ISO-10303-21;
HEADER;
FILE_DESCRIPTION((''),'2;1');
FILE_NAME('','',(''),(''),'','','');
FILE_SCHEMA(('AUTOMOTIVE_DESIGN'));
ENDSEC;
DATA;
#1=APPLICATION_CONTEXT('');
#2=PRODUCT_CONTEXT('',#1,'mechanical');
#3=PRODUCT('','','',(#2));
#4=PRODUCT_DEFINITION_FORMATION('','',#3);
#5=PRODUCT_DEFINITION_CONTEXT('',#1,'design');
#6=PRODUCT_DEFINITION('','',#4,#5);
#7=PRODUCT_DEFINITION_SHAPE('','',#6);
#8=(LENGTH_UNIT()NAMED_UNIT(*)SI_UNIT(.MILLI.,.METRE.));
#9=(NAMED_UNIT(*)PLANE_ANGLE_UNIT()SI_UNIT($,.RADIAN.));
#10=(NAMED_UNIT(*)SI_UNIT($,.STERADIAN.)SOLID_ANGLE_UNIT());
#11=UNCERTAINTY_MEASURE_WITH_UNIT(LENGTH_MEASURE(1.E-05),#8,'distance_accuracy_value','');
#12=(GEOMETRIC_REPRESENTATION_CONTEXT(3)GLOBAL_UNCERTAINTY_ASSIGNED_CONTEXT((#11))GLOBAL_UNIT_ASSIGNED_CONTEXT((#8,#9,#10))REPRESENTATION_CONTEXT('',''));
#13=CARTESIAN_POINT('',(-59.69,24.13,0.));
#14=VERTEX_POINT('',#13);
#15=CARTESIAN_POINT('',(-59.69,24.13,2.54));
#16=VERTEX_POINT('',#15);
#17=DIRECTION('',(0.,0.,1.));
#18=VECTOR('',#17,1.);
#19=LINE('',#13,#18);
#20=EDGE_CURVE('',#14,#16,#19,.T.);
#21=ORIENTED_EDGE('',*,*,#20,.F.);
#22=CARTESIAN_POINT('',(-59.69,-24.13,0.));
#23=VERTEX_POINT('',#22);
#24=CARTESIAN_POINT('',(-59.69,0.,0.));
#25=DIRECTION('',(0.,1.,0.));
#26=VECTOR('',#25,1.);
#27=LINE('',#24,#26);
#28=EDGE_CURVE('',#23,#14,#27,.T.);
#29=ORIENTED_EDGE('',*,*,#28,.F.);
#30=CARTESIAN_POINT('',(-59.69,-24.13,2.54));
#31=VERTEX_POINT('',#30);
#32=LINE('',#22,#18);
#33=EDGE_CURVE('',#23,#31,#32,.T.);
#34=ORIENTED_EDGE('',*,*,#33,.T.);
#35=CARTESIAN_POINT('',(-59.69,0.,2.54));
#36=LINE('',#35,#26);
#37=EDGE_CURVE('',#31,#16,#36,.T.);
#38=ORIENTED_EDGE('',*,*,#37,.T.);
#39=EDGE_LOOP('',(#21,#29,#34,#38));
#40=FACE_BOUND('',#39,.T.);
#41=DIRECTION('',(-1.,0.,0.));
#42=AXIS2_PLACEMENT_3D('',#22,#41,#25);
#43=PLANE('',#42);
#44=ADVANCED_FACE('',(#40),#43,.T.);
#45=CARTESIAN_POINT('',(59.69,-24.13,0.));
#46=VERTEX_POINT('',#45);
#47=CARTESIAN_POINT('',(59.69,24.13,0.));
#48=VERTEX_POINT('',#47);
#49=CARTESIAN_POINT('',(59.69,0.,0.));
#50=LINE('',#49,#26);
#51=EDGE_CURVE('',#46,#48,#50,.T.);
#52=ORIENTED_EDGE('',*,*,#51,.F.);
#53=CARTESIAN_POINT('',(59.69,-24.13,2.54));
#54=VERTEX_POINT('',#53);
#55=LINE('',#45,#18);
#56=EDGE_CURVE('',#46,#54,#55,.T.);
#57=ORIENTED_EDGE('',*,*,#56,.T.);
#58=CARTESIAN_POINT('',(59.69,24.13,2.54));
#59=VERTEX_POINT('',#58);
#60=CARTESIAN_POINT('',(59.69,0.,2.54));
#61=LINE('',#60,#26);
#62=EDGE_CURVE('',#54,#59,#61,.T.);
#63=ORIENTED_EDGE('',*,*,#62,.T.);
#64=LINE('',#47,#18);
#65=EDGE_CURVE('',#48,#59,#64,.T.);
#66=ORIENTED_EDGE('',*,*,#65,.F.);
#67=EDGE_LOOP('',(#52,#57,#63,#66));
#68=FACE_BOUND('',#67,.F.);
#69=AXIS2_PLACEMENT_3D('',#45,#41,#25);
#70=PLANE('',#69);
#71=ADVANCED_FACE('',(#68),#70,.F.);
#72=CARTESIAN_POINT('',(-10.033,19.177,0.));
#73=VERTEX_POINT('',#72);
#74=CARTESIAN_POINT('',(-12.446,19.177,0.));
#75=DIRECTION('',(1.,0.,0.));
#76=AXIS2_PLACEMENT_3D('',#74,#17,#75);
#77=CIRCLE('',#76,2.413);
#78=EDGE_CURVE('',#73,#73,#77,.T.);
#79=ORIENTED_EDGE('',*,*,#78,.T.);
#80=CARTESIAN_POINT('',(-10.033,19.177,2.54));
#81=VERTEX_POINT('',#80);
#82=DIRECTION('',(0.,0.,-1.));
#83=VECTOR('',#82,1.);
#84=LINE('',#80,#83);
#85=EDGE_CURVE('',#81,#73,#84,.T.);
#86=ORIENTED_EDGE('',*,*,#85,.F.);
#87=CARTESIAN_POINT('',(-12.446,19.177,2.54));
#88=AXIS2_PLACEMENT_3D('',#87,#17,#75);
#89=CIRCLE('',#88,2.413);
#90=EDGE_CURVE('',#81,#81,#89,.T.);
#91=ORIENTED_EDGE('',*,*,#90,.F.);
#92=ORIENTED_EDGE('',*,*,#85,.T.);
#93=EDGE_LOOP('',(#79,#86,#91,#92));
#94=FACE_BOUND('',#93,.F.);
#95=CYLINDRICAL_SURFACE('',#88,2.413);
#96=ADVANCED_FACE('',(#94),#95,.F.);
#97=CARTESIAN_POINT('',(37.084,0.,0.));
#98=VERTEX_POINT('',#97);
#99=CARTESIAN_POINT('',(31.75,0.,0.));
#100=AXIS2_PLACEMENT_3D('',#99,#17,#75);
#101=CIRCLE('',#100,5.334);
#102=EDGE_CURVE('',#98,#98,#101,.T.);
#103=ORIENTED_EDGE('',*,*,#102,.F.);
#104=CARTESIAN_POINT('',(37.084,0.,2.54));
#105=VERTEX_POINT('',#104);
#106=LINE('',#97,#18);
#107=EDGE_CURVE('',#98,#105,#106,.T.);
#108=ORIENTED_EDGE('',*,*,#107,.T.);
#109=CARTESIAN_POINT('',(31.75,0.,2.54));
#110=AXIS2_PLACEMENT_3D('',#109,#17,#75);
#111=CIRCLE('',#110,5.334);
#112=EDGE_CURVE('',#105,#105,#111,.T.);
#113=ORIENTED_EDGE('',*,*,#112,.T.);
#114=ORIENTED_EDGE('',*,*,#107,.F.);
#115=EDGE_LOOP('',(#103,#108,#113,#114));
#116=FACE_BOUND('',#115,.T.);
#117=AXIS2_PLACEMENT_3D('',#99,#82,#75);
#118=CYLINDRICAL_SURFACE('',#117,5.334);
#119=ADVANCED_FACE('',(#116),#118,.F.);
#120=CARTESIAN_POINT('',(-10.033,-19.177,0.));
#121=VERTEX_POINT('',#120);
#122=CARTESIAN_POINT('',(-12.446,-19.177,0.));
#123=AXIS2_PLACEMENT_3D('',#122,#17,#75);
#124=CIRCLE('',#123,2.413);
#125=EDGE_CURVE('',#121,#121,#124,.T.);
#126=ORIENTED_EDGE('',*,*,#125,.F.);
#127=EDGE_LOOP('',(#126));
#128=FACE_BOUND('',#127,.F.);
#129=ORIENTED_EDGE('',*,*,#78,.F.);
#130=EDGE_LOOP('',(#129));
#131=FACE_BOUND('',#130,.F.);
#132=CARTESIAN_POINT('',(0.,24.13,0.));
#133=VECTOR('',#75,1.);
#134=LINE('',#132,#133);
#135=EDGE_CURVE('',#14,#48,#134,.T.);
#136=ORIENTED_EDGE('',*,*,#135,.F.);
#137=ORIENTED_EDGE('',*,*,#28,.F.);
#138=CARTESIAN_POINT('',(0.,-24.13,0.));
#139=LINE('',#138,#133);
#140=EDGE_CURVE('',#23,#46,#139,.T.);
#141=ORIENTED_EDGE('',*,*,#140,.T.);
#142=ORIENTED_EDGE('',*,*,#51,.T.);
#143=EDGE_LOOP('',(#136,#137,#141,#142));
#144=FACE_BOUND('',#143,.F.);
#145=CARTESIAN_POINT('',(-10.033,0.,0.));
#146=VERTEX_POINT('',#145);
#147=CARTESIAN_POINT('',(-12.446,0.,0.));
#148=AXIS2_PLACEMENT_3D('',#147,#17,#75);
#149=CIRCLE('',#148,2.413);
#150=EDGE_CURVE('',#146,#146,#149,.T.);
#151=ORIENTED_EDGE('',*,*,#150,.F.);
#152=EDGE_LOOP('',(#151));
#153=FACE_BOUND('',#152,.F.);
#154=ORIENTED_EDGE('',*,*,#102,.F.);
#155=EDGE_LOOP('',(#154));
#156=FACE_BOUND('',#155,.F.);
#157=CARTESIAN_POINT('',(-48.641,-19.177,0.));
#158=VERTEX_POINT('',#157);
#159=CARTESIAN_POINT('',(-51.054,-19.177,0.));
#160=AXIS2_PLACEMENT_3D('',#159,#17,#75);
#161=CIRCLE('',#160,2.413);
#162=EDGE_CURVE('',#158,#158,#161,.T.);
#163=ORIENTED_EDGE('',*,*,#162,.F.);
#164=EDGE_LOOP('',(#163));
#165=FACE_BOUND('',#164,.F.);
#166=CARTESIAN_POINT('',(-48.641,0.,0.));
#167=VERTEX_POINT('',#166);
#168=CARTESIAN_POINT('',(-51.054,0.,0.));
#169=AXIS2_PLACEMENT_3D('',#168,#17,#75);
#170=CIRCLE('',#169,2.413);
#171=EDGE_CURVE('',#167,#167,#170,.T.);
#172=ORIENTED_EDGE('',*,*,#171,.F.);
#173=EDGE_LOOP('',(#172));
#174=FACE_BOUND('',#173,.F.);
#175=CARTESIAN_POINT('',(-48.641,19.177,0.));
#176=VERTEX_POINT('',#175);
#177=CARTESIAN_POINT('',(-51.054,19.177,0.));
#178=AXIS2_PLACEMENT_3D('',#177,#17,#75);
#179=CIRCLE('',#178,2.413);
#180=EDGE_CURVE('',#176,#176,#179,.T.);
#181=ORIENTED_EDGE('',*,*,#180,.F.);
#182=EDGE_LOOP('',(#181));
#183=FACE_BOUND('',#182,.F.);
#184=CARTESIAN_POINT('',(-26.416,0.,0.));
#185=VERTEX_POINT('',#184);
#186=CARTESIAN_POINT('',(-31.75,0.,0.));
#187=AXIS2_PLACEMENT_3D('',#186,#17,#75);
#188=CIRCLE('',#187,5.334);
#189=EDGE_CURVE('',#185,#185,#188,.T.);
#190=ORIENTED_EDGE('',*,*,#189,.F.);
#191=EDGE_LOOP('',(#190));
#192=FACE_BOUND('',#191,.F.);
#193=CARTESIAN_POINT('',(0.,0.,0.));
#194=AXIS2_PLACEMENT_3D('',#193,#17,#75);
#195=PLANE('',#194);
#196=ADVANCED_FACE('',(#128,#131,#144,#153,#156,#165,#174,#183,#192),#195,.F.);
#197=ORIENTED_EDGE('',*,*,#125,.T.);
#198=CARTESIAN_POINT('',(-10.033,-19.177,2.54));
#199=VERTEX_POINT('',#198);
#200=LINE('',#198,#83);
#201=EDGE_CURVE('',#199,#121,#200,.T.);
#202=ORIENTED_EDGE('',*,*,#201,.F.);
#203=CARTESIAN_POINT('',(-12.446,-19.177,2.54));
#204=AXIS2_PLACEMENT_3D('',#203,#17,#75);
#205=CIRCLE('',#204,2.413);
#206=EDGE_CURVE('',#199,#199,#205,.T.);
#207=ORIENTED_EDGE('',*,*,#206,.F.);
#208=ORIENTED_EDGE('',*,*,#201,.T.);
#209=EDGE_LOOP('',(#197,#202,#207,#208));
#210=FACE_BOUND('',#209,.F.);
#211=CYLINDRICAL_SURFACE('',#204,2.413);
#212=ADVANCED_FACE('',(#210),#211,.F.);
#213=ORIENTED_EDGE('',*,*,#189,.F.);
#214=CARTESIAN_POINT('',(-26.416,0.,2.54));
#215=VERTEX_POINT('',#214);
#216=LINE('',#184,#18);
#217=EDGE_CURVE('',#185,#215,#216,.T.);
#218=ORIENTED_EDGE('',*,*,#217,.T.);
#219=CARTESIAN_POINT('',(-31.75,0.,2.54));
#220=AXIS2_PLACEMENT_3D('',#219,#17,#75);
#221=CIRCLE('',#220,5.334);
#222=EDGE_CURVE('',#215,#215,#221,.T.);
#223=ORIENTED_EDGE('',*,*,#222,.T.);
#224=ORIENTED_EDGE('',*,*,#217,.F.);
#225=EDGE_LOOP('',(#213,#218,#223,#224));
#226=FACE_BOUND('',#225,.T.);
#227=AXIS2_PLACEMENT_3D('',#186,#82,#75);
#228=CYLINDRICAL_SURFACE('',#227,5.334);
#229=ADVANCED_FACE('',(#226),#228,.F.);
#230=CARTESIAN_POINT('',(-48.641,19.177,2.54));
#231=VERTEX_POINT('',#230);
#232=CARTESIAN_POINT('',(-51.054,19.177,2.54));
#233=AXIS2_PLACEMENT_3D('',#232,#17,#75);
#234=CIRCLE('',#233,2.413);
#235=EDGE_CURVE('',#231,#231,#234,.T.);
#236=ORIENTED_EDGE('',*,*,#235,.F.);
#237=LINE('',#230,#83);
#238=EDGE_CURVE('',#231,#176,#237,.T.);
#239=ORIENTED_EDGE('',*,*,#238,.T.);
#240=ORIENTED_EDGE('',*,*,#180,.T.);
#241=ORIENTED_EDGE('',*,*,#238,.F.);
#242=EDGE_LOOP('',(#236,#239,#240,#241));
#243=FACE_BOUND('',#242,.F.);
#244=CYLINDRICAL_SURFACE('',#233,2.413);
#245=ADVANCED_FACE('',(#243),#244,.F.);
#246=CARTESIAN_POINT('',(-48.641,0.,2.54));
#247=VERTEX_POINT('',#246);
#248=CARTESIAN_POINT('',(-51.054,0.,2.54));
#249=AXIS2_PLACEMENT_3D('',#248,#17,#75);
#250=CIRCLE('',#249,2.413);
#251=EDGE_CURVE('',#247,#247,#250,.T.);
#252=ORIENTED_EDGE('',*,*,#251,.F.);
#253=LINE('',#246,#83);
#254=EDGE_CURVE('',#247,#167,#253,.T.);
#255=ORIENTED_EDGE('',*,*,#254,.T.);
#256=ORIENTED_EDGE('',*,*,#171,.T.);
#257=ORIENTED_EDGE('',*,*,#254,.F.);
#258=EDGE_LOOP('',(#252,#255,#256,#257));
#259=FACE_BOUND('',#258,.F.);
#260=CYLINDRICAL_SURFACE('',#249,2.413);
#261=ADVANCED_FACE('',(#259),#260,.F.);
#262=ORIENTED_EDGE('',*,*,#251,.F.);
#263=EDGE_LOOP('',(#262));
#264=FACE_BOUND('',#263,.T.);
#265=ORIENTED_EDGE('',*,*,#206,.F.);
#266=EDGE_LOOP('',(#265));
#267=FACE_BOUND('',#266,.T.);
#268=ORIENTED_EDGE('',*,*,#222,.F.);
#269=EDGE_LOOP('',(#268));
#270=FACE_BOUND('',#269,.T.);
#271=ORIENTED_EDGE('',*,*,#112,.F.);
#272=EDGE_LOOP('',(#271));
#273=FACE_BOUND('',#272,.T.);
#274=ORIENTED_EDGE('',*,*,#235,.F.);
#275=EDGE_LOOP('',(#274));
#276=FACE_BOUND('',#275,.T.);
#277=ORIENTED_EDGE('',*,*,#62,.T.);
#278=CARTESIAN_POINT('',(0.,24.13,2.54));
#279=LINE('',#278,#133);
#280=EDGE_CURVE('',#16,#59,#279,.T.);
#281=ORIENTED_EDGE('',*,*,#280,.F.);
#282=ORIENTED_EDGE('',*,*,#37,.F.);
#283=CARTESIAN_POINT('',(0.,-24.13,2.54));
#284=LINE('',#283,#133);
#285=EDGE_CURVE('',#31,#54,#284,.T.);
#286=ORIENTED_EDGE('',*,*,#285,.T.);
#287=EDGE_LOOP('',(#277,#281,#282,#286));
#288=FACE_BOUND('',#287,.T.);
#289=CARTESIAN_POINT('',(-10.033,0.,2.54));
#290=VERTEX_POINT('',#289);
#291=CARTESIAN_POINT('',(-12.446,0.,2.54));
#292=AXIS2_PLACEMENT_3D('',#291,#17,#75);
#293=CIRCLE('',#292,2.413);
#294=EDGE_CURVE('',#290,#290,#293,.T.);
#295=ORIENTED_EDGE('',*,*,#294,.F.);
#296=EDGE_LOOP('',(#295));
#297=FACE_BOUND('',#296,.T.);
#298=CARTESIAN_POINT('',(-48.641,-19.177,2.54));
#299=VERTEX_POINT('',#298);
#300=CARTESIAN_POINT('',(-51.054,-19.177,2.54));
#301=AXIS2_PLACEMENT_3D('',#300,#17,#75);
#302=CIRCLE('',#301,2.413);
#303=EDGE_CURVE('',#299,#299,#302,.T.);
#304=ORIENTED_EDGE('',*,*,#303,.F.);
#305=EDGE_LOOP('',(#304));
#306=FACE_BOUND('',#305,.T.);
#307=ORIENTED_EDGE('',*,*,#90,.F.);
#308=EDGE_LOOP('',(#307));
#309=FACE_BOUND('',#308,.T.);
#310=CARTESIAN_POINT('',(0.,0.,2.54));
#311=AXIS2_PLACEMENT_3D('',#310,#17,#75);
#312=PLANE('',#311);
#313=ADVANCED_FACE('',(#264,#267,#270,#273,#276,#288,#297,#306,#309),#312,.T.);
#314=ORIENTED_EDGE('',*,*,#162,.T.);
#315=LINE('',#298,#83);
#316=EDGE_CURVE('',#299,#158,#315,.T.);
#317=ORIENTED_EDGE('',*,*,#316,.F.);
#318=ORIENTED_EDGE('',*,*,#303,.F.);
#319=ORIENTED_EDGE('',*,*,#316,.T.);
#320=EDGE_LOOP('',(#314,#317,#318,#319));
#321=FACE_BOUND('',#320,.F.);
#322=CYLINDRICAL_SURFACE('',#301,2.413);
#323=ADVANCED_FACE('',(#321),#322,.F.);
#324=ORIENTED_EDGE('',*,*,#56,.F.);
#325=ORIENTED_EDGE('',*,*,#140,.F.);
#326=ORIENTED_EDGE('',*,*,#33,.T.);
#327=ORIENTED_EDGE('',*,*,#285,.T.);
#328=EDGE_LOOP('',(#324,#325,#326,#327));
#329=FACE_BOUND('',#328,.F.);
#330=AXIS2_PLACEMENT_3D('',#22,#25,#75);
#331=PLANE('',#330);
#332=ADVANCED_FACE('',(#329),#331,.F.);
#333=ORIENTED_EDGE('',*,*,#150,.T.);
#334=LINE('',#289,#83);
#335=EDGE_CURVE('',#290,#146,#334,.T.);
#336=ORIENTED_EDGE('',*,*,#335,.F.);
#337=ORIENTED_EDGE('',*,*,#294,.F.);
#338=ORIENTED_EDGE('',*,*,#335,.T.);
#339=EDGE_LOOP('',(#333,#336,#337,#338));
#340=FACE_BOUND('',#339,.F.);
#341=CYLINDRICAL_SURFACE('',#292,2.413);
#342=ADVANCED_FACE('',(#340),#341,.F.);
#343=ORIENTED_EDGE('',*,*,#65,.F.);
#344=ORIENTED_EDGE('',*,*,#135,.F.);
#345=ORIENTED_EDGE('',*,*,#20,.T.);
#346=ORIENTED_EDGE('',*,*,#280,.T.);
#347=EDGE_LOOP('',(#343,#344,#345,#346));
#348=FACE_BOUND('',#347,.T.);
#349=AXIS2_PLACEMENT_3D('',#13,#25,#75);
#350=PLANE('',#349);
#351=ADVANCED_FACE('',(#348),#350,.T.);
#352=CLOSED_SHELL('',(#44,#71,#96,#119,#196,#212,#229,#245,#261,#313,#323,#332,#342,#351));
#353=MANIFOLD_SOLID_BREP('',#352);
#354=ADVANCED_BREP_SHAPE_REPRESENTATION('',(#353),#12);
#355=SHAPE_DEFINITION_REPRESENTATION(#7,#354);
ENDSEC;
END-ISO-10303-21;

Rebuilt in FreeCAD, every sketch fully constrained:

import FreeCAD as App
import Part
import Sketcher

V = App.Vector
Q = App.Units.Quantity

doc = App.newDocument("Part")
body = doc.addObject("PartDesign::Body", "Body")

# Sketch on XY plane
sketch1 = doc.addObject("Sketcher::SketchObject", "Sketch")
body.addObject(sketch1)
sketch1.AttachmentSupport = (doc.XY_Plane, [""])
sketch1.MapMode = "FlatFace"
sketch1.addGeometry([
    Part.LineSegment(V(-60, 24, 0), V(-60, -24, 0)),  # 0
    Part.LineSegment(V(-60, -24, 0), V(60, -24, 0)),  # 1
    Part.LineSegment(V(60, -24, 0), V(60, 24, 0)),  # 2
    Part.LineSegment(V(60, 24, 0), V(-60, 24, 0)),  # 3
    Part.Circle(V(-32, 0, 0), V(0, 0, 1), 5),  # 4
    Part.Circle(V(32, 0, 0), V(0, 0, 1), 5),  # 5
], False)
sketch1.addConstraint([
    Sketcher.Constraint("Coincident", 0, 2, 1, 1),
    Sketcher.Constraint("Coincident", 1, 2, 2, 1),
    Sketcher.Constraint("Coincident", 2, 2, 3, 1),
    Sketcher.Constraint("Coincident", 3, 2, 0, 1),
    Sketcher.Constraint("Vertical", 0),
    Sketcher.Constraint("Horizontal", 1),
    Sketcher.Constraint("Vertical", 2),
    Sketcher.Constraint("Horizontal", 3),
    Sketcher.Constraint("Equal", 4, 5),
    Sketcher.Constraint("Symmetric", 4, 3, 5, 3, -1, 1),
    Sketcher.Constraint("Symmetric", 0, 2, 2, 2, -1, 1),
    Sketcher.Constraint("PointOnObject", 4, 3, -1),
    Sketcher.Constraint("Diameter", 4, Q("0.42 in")),
    Sketcher.Constraint("DistanceX", 1, 1, 1, 2, Q("4.7 in")),
    Sketcher.Constraint("DistanceY", 0, 2, 0, 1, Q("1.9 in")),
    Sketcher.Constraint("DistanceX", 4, 3, 5, 3, Q("2.5 in")),
])
pad1 = doc.addObject("PartDesign::Pad", "Pad")
body.addObject(pad1)
pad1.Profile = sketch1
pad1.Length = Q("0.1 in")

# Sketch on XY plane
sketch2 = doc.addObject("Sketcher::SketchObject", "Sketch001")
body.addObject(sketch2)
sketch2.AttachmentSupport = (doc.XY_Plane, [""])
sketch2.MapMode = "FlatFace"
sketch2.addGeometry([
    Part.LineSegment(V(-60, 24, 0), V(-60, -24, 0)),  # 0
    Part.LineSegment(V(-60, -24, 0), V(60, -24, 0)),  # 1
    Part.LineSegment(V(60, -24, 0), V(60, 24, 0)),  # 2
    Part.LineSegment(V(60, 24, 0), V(-60, 24, 0)),  # 3
    Part.Circle(V(-32, 0, 0), V(0, 0, 1), 5),  # 4
    Part.Circle(V(32, 0, 0), V(0, 0, 1), 5),  # 5
], False)
sketch2.addConstraint([
    Sketcher.Constraint("Coincident", 0, 2, 1, 1),
    Sketcher.Constraint("Coincident", 1, 2, 2, 1),
    Sketcher.Constraint("Coincident", 2, 2, 3, 1),
    Sketcher.Constraint("Coincident", 3, 2, 0, 1),
    Sketcher.Constraint("Vertical", 0),
    Sketcher.Constraint("Horizontal", 1),
    Sketcher.Constraint("Vertical", 2),
    Sketcher.Constraint("Horizontal", 3),
    Sketcher.Constraint("Equal", 4, 5),
    Sketcher.Constraint("Symmetric", 4, 3, 5, 3, -1, 1),
    Sketcher.Constraint("Symmetric", 0, 2, 2, 2, -1, 1),
    Sketcher.Constraint("PointOnObject", 4, 3, -1),
    Sketcher.Constraint("Diameter", 4, Q("0.42 in")),
    Sketcher.Constraint("DistanceX", 1, 1, 1, 2, Q("4.7 in")),
    Sketcher.Constraint("DistanceY", 0, 2, 0, 1, Q("1.9 in")),
    Sketcher.Constraint("DistanceX", 4, 3, 5, 3, Q("2.5 in")),
])
pad2 = doc.addObject("PartDesign::Pad", "Pad001")
body.addObject(pad2)
pad2.Profile = sketch2
pad2.Length = Q("0.1 in")

# Sketch on XY plane
sketch3 = doc.addObject("Sketcher::SketchObject", "Sketch002")
body.addObject(sketch3)
sketch3.AttachmentSupport = (doc.XY_Plane, [""])
sketch3.MapMode = "FlatFace"
sketch3.AttachmentOffset = App.Placement(V(0, 0, 0.1 * 25.4), App.Rotation())
sketch3.addGeometry([
    Part.Circle(V(-51.1, 0, 0), V(0, 0, 1), 2.4),
    Part.Circle(V(-51.1, 19.2, 0), V(0, 0, 1), 2.4),
    Part.Circle(V(-51.1, -19.2, 0), V(0, 0, 1), 2.4),
], False)
sketch3.addConstraint([
    Sketcher.Constraint("Equal", 0, 1),
    Sketcher.Constraint("Equal", 1, 2),
    Sketcher.Constraint("Symmetric", 1, 3, 2, 3, -1),
    Sketcher.Constraint("PointOnObject", 0, 3, -1),
    Sketcher.Constraint("Vertical", 0, 3, 1, 3),
    Sketcher.Constraint("Diameter", 0, Q("0.19 in")),
    Sketcher.Constraint("DistanceX", 0, 3, -1, 1, Q("2.01 in")),
    Sketcher.Constraint("DistanceY", 2, 3, 1, 3, Q("1.51 in")),
])
pocket1 = doc.addObject("PartDesign::Pocket", "Pocket")
body.addObject(pocket1)
pocket1.Profile = sketch3
pocket1.Type = "ThroughAll"

# Sketch on XY plane
sketch4 = doc.addObject("Sketcher::SketchObject", "Sketch003")
body.addObject(sketch4)
sketch4.AttachmentSupport = (doc.XY_Plane, [""])
sketch4.MapMode = "FlatFace"
sketch4.AttachmentOffset = App.Placement(V(0, 0, 0.1 * 25.4), App.Rotation())
sketch4.addGeometry([
    Part.Circle(V(-12.4, 0, 0), V(0, 0, 1), 2.4),
    Part.Circle(V(-12.4, 19.2, 0), V(0, 0, 1), 2.4),
    Part.Circle(V(-12.4, -19.2, 0), V(0, 0, 1), 2.4),
], False)
sketch4.addConstraint([
    Sketcher.Constraint("Equal", 0, 1),
    Sketcher.Constraint("Equal", 1, 2),
    Sketcher.Constraint("Symmetric", 1, 3, 2, 3, -1),
    Sketcher.Constraint("PointOnObject", 0, 3, -1),
    Sketcher.Constraint("Vertical", 0, 3, 1, 3),
    Sketcher.Constraint("Diameter", 0, Q("0.19 in")),
    Sketcher.Constraint("DistanceX", 0, 3, -1, 1, Q("0.49 in")),
    Sketcher.Constraint("DistanceY", 2, 3, 1, 3, Q("1.51 in")),
])
pocket2 = doc.addObject("PartDesign::Pocket", "Pocket001")
body.addObject(pocket2)
pocket2.Profile = sketch4
pocket2.Type = "ThroughAll"

doc.recompute()
